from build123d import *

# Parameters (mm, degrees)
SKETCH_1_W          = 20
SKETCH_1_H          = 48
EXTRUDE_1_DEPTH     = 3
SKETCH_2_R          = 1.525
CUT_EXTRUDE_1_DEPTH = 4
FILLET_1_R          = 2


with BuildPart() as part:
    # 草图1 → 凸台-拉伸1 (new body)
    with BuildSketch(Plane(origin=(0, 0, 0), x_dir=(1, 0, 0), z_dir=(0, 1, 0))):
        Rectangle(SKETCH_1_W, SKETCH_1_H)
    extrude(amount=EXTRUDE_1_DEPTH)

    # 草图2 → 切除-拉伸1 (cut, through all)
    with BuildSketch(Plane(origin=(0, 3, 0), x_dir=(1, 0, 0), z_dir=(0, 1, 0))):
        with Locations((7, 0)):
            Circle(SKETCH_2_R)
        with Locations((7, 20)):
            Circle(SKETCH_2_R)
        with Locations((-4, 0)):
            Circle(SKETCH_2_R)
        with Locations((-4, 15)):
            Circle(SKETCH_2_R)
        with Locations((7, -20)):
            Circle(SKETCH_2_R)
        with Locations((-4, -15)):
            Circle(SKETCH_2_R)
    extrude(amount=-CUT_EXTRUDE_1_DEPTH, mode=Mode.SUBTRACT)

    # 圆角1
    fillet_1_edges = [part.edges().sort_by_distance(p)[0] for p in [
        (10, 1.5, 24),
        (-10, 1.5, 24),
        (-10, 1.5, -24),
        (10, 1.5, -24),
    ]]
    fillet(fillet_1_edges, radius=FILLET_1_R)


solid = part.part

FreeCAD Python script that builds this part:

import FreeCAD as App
import Part
import Sketcher

V = App.Vector


def edges_at(feature, points):
    """Names of the edges that pass closest to the given points."""
    edges = feature.Shape.Edges
    near = lambda p: min(range(len(edges)), key=lambda i: edges[i].distToShape(Part.Vertex(*p))[0])
    return sorted({f"Edge{near(p) + 1}" for p in points})


def add_polygon(sketch, points):
    """Adds a closed chain of lines whose ends are joined by coincident constraints."""
    first, n = sketch.GeometryCount, len(points)
    for a, b in zip(points, points[1:] + points[:1]):
        sketch.addGeometry(Part.LineSegment(App.Vector(*a, 0), App.Vector(*b, 0)), False)
    for i in range(n):
        sketch.addConstraint(Sketcher.Constraint("Coincident", first + i, 2, first + (i + 1) % n, 1))

doc = App.newDocument("Part")
body = doc.addObject("PartDesign::Body", "Body")

sketch1 = doc.addObject("Sketcher::SketchObject", "Sketch")
body.addObject(sketch1)
sketch1.AttachmentSupport = (doc.XZ_Plane, [""])
sketch1.MapMode = "FlatFace"
add_polygon(sketch1, [(-10, -24), (-10, 24), (10, 24), (10, -24)])
sketch1.addConstraint([
    Sketcher.Constraint("Vertical", 0),
    Sketcher.Constraint("Horizontal", 1),
    Sketcher.Constraint("Vertical", 2),
    Sketcher.Constraint("Horizontal", 3),
    Sketcher.Constraint("Symmetric", 0, 2, 2, 2, -1, 1),
    Sketcher.Constraint("DistanceX", 1, 1, 1, 2, 20.0),
    Sketcher.Constraint("DistanceY", 0, 1, 0, 2, 48.0),
])
pad1 = doc.addObject("PartDesign::Pad", "Pad")
body.addObject(pad1)
pad1.Profile = sketch1
pad1.Length = 3
pad1.Reversed = True

sketch2 = doc.addObject("Sketcher::SketchObject", "Sketch001")
body.addObject(sketch2)
sketch2.AttachmentSupport = (doc.XZ_Plane, [""])
sketch2.MapMode = "FlatFace"
sketch2.AttachmentOffset = App.Placement(V(0, 0, -3), App.Rotation())
sketch2.addGeometry([
    Part.Circle(V(7, 0, 0), V(0, 0, 1), 1.5),
    Part.Circle(V(7, -20, 0), V(0, 0, 1), 1.5),
    Part.Circle(V(-4, 0, 0), V(0, 0, 1), 1.5),
    Part.Circle(V(-4, -15, 0), V(0, 0, 1), 1.5),
    Part.Circle(V(7, 20, 0), V(0, 0, 1), 1.5),
    Part.Circle(V(-4, 15, 0), V(0, 0, 1), 1.5),
], False)
sketch2.addConstraint([
    Sketcher.Constraint("Equal", 0, 1),
    Sketcher.Constraint("Equal", 1, 2),
    Sketcher.Constraint("Equal", 2, 3),
    Sketcher.Constraint("Equal", 3, 4),
    Sketcher.Constraint("Equal", 4, 5),
    Sketcher.Constraint("Symmetric", 1, 3, 4, 3, -1),
    Sketcher.Constraint("Symmetric", 3, 3, 5, 3, -1),
    Sketcher.Constraint("PointOnObject", 0, 3, -1),
    Sketcher.Constraint("PointOnObject", 2, 3, -1),
    Sketcher.Constraint("Vertical", 0, 3, 1, 3),
    Sketcher.Constraint("Vertical", 2, 3, 3, 3),
    Sketcher.Constraint("Diameter", 0, 3.05),
    Sketcher.Constraint("DistanceX", -1, 1, 0, 3, 7.0),
    Sketcher.Constraint("DistanceY", 1, 3, -1, 1, 20.0),
    Sketcher.Constraint("DistanceX", 2, 3, -1, 1, 4.0),
    Sketcher.Constraint("DistanceY", 3, 3, -1, 1, 15.0),
])
pocket1 = doc.addObject("PartDesign::Pocket", "Pocket")
body.addObject(pocket1)
pocket1.Profile = sketch2
pocket1.Type = "ThroughAll"
pocket1.Reversed = True
doc.recompute()

fillet = doc.addObject("PartDesign::Fillet", "Fillet")
body.addObject(fillet)
fillet.Base = (pocket1, edges_at(pocket1, [
    (10, 1.5, 24),
    (-10, 1.5, 24),
    (-10, 1.5, -24),
    (10, 1.5, -24),
]))
fillet.Radius = 2

doc.recompute()
